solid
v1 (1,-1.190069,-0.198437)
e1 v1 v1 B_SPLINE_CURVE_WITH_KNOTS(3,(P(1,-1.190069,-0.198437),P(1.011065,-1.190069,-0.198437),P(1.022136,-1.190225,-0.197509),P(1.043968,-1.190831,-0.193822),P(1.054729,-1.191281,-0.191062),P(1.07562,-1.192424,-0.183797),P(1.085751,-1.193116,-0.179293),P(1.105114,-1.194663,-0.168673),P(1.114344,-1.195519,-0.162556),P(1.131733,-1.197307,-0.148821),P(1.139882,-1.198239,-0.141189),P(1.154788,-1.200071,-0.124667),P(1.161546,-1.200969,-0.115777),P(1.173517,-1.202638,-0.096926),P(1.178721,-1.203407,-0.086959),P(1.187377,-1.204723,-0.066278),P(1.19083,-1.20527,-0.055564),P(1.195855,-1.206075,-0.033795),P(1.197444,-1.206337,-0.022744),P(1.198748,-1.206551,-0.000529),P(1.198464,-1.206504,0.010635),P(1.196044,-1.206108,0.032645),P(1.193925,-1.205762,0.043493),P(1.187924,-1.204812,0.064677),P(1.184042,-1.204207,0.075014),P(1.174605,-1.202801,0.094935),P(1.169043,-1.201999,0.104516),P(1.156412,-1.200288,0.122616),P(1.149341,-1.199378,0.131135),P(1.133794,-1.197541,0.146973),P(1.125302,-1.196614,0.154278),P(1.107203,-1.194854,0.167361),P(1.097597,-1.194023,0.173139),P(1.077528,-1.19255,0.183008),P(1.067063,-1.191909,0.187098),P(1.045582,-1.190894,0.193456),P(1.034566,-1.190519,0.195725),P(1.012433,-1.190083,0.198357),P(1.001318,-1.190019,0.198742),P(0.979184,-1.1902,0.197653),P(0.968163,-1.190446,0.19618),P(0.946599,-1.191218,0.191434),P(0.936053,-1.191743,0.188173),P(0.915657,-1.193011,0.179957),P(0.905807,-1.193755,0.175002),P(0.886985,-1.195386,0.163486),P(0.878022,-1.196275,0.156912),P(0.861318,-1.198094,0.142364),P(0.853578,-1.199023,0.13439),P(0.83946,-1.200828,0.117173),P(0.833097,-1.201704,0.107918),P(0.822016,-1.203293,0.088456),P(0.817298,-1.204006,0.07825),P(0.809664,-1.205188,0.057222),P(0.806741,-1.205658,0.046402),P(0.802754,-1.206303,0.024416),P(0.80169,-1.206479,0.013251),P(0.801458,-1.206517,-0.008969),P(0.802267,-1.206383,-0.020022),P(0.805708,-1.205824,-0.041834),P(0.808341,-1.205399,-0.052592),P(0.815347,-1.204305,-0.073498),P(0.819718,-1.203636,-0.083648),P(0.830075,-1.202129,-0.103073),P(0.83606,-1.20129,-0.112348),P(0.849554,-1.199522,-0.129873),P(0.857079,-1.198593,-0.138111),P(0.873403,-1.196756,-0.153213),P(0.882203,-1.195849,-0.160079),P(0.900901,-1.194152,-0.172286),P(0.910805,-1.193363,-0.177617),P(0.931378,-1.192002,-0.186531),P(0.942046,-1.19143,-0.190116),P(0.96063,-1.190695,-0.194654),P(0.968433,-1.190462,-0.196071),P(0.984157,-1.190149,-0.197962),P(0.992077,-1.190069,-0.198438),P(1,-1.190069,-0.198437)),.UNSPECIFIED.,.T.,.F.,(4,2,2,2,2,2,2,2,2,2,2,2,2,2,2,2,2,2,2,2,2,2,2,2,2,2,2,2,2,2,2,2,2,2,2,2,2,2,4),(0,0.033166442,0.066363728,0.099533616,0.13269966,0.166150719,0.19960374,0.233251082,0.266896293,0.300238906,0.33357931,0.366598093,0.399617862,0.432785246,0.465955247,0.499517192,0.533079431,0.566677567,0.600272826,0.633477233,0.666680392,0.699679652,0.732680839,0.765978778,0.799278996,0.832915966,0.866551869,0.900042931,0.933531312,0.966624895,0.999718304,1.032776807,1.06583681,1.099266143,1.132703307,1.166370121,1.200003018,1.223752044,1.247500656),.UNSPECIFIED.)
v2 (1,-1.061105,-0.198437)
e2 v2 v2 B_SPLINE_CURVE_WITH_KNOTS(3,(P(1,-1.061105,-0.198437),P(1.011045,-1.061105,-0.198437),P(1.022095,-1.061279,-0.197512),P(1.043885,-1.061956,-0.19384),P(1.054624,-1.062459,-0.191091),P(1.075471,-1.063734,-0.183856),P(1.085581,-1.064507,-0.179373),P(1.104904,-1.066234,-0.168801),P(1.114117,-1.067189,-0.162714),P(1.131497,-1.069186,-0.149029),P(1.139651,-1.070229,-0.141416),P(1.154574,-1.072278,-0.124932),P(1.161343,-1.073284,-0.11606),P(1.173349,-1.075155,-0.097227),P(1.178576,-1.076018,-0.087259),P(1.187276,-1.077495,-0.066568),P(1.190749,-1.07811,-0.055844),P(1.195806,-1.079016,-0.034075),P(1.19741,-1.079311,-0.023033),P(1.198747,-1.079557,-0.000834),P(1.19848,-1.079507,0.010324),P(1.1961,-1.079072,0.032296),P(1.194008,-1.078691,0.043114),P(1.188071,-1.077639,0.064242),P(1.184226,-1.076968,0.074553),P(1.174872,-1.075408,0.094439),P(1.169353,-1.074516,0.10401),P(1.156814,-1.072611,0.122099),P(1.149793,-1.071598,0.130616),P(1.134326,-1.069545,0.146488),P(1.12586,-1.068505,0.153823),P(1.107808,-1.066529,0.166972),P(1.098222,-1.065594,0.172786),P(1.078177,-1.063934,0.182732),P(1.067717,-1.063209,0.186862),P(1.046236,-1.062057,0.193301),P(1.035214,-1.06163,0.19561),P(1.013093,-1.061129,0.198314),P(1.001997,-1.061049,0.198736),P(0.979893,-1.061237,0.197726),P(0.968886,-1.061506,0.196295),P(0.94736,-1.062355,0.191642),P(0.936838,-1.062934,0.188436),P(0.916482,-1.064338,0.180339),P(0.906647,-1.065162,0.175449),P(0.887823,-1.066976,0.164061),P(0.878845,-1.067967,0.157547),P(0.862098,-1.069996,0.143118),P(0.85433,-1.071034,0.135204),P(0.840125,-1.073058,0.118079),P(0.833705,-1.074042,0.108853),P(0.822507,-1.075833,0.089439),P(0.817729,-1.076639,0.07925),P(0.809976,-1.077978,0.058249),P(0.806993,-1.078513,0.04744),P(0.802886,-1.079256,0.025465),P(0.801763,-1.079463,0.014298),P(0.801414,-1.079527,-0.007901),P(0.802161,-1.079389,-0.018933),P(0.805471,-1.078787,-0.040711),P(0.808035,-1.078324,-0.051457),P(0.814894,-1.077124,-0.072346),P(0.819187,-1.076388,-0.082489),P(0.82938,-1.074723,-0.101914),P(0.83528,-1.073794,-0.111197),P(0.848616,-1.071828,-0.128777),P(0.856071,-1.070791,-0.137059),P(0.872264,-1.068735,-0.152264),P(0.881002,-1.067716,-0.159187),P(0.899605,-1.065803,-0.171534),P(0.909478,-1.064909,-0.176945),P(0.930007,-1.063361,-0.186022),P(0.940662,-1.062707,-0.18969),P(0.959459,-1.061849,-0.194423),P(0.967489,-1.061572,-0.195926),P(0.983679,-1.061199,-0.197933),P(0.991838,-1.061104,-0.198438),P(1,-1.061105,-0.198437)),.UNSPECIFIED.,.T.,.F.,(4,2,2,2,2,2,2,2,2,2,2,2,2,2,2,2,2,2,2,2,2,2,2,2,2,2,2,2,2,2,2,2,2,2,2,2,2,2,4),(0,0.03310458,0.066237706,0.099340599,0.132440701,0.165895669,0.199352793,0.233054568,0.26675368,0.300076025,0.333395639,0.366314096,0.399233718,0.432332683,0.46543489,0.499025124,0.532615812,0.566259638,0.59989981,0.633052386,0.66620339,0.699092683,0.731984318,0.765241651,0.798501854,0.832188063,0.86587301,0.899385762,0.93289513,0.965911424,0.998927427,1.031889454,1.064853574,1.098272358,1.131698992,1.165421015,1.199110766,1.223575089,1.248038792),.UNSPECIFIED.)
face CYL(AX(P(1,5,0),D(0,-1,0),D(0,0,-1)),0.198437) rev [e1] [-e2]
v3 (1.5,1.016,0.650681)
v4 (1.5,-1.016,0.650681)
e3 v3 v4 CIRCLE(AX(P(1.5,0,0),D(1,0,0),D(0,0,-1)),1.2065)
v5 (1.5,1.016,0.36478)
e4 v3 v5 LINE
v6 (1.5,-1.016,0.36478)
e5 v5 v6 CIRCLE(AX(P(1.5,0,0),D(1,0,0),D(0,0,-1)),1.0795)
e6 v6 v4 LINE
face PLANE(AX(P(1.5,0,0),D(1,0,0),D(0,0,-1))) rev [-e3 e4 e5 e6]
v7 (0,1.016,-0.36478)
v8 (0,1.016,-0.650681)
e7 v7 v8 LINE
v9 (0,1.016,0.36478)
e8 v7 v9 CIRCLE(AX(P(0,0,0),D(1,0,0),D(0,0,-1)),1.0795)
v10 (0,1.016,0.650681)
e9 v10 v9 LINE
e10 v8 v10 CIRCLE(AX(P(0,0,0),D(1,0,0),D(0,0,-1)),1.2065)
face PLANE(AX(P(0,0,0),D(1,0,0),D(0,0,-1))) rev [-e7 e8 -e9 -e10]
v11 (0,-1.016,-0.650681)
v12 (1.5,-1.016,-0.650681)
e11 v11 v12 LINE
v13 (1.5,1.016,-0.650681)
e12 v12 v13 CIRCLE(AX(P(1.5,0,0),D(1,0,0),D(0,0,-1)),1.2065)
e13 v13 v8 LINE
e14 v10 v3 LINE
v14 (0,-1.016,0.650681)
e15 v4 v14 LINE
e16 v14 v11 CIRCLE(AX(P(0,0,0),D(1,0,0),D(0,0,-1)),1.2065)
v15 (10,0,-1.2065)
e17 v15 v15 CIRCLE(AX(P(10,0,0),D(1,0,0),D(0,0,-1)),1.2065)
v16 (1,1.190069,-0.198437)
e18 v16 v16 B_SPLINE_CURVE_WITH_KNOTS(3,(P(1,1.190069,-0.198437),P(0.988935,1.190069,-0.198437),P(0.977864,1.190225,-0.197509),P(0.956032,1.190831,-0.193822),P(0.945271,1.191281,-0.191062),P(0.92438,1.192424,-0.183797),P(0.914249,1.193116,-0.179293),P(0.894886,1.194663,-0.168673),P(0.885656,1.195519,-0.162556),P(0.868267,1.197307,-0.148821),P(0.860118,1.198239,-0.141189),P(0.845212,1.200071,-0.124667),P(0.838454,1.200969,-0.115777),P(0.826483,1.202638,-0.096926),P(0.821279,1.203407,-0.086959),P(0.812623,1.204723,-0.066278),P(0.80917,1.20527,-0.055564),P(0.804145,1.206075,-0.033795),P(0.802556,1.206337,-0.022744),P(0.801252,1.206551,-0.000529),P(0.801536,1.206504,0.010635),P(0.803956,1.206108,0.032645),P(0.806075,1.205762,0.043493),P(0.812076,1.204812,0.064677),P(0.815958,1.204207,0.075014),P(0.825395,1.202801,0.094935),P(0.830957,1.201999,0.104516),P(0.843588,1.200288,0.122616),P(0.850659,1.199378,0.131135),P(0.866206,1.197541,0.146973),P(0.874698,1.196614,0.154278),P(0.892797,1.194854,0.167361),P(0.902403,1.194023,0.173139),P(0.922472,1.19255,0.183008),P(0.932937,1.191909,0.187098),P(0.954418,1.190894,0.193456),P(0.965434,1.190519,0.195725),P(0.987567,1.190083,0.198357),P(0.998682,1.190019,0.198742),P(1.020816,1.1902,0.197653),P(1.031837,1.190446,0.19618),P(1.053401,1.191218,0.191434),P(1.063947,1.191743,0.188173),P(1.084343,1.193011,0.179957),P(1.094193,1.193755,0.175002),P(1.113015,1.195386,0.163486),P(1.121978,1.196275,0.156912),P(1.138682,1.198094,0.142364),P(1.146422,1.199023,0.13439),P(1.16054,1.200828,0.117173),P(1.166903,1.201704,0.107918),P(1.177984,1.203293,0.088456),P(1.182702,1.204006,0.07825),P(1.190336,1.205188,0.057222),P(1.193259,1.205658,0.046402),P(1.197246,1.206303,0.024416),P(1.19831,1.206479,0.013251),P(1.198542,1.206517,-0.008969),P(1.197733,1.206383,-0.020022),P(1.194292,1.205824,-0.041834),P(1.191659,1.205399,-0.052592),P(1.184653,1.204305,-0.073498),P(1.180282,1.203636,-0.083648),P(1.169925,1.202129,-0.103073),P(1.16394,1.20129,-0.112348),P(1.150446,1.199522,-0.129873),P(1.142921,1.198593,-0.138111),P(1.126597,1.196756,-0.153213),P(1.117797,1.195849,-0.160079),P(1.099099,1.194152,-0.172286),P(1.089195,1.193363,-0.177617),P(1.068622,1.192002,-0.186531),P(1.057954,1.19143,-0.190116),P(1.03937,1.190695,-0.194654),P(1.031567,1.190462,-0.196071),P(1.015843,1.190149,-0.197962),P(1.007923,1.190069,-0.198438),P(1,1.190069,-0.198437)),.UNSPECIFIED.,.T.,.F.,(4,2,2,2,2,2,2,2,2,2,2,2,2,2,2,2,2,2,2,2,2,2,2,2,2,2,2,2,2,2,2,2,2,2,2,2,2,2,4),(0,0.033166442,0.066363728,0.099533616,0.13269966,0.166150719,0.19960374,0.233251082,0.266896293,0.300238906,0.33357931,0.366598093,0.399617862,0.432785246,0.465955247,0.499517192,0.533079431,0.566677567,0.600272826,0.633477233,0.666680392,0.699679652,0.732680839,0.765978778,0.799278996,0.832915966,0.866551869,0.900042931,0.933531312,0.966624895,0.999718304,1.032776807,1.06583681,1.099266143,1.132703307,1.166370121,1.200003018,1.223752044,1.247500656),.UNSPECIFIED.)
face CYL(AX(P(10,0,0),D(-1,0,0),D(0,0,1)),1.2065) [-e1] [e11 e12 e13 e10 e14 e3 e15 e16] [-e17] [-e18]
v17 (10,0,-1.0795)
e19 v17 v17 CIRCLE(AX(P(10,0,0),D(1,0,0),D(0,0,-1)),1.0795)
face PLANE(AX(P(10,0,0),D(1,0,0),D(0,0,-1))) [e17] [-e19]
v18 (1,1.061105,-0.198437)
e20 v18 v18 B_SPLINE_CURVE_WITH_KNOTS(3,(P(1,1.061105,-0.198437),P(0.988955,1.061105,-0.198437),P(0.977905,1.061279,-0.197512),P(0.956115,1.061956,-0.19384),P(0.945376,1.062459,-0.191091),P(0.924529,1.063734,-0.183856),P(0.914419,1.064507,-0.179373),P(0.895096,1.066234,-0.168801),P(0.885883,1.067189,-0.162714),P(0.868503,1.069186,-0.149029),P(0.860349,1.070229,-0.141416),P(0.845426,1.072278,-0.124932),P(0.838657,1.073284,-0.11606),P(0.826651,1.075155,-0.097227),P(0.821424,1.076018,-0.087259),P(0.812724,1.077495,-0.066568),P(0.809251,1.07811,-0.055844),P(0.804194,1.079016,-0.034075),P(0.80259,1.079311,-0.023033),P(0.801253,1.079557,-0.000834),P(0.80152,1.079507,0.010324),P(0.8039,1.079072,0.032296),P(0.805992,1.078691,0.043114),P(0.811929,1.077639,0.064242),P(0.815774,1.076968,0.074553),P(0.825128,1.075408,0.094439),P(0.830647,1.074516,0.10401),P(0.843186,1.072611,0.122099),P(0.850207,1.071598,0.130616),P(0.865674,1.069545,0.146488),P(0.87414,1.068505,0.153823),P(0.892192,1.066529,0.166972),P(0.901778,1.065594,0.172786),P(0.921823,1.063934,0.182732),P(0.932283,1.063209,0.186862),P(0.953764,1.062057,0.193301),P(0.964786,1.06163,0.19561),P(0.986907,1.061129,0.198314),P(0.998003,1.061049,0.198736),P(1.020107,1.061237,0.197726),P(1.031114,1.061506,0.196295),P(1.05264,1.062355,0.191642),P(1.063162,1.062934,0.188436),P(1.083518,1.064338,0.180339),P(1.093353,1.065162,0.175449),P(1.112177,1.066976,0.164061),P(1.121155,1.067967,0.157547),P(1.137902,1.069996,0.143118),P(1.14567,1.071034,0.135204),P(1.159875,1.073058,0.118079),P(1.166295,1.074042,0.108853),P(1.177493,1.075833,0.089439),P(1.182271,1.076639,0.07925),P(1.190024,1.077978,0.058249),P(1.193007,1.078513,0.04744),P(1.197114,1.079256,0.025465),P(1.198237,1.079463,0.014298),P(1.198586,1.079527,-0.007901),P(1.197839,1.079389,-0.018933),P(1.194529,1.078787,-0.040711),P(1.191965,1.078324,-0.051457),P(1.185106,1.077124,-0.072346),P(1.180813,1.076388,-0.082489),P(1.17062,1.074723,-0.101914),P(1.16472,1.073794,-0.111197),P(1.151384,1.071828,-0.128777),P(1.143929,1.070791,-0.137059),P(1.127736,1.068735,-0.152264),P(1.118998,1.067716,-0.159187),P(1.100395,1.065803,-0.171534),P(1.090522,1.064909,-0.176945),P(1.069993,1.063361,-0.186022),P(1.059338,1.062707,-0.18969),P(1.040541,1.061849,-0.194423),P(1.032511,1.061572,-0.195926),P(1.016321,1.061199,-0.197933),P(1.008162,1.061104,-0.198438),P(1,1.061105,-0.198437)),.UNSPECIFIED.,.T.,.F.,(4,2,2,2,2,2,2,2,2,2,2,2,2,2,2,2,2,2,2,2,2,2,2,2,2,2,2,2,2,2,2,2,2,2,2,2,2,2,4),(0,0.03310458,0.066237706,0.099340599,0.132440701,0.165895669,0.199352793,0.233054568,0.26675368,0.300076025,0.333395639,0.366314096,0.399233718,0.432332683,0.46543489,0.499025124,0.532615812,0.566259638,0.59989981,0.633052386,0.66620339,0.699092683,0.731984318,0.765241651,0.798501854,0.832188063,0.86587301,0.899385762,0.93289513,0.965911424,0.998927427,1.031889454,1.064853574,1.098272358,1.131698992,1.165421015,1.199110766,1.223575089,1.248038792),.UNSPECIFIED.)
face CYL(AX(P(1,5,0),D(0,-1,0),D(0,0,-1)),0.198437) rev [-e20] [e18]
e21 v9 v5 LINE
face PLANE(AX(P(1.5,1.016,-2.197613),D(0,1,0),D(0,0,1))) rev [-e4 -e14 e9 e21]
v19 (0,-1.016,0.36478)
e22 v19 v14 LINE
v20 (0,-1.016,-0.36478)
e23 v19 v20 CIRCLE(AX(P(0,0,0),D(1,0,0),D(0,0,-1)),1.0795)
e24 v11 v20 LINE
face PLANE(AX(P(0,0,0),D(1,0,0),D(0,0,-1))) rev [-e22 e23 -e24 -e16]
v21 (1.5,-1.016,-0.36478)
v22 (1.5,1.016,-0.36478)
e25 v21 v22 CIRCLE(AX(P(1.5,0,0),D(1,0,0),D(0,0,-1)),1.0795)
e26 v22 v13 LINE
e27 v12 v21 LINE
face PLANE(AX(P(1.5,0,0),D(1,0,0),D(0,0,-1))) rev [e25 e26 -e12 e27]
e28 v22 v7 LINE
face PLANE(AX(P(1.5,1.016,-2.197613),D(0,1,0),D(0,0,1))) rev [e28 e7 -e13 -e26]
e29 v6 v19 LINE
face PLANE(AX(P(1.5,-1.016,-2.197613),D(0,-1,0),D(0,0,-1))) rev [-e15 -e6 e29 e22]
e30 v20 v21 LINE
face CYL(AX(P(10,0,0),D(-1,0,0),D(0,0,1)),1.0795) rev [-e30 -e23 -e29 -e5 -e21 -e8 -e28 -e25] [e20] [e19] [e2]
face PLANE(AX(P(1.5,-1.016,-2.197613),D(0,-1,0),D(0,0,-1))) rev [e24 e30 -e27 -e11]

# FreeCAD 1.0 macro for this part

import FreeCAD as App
import Part
import Sketcher
from FreeCAD import Vector
Q = App.Units.Quantity

doc = App.newDocument("Part")
body = doc.addObject("PartDesign::Body", "Body")

# Sketch on YZ plane
sketch1 = body.newObject("Sketcher::SketchObject", "Sketch")
sketch1.AttachmentSupport = (doc.getObject("YZ_Plane"), [""])
sketch1.MapMode = "FlatFace"
sketch1.addGeometry([
    Part.Circle(Vector(0, 0, 0), Vector(0, 0, 1), 1.2065),
    Part.Circle(Vector(0, 0, 0), Vector(0, 0, 1), 1.0795),
], False)
sketch1.addConstraint([
    Sketcher.Constraint("Coincident", 0, 3, -1, 1),
    Sketcher.Constraint("Coincident", 1, 3, -1, 1),
    Sketcher.Constraint("Diameter", 0, Q("0.095 in")),
    Sketcher.Constraint("Diameter", 1, Q("0.085 in")),
])
pad1 = body.newObject("PartDesign::Pad", "Pad")
pad1.Profile = sketch1
pad1.Length = 10

# Sketch on YZ plane
sketch2 = body.newObject("Sketcher::SketchObject", "Sketch001")
sketch2.AttachmentSupport = (doc.getObject("YZ_Plane"), [""])
sketch2.MapMode = "FlatFace"
sketch2.addGeometry([
    Part.LineSegment(Vector(1.016, -2.197613, 0), Vector(-1.016, -2.197613, 0)),
    Part.LineSegment(Vector(-1.016, -2.197613, 0), Vector(-1.016, 2.451204, 0)),
    Part.LineSegment(Vector(-1.016, 2.451204, 0), Vector(1.016, 2.451204, 0)),
    Part.LineSegment(Vector(1.016, 2.451204, 0), Vector(1.016, -2.197613, 0)),
], False)
sketch2.addConstraint([
    Sketcher.Constraint("Coincident", 0, 2, 1, 1),
    Sketcher.Constraint("Coincident", 1, 2, 2, 1),
    Sketcher.Constraint("Coincident", 2, 2, 3, 1),
    Sketcher.Constraint("Coincident", 3, 2, 0, 1),
    Sketcher.Constraint("Horizontal", 0),
    Sketcher.Constraint("Vertical", 1),
    Sketcher.Constraint("Horizontal", 2),
    Sketcher.Constraint("Vertical", 3),
    Sketcher.Constraint("DistanceX", 0, 2, 0, 1, Q("0.08 in")),
    Sketcher.Constraint("DistanceX", 0, 2, -1, 1, Q("0.04 in")),
    Sketcher.Constraint("DistanceY", 1, 1, 1, 2, Q("4.648816 mm")),
    Sketcher.Constraint("DistanceY", 0, 2, -1, 1, Q("2.197613 mm")),
])
pocket1 = body.newObject("PartDesign::Pocket", "Pocket")
pocket1.Profile = sketch2
pocket1.Length = 1.5
pocket1.Reversed = True

# Sketch on XZ plane
sketch3 = body.newObject("Sketcher::SketchObject", "Sketch002")
sketch3.AttachmentSupport = (doc.getObject("XZ_Plane"), [""])
sketch3.MapMode = "FlatFace"
sketch3.addGeometry(Part.Circle(Vector(1, 0, 0), Vector(0, 0, 1), 0.198437), False)
sketch3.addConstraint([
    Sketcher.Constraint("PointOnObject", 0, 3, -1),
    Sketcher.Constraint("Diameter", 0, Q("0.015625 in")),
    Sketcher.Constraint("DistanceX", -1, 1, 0, 3, Q("1 mm")),
])
pocket2 = body.newObject("PartDesign::Pocket", "Pocket001")
pocket2.Profile = sketch3
pocket2.Type = "ThroughAll"
pocket2.Midplane = True

doc.recompute()
